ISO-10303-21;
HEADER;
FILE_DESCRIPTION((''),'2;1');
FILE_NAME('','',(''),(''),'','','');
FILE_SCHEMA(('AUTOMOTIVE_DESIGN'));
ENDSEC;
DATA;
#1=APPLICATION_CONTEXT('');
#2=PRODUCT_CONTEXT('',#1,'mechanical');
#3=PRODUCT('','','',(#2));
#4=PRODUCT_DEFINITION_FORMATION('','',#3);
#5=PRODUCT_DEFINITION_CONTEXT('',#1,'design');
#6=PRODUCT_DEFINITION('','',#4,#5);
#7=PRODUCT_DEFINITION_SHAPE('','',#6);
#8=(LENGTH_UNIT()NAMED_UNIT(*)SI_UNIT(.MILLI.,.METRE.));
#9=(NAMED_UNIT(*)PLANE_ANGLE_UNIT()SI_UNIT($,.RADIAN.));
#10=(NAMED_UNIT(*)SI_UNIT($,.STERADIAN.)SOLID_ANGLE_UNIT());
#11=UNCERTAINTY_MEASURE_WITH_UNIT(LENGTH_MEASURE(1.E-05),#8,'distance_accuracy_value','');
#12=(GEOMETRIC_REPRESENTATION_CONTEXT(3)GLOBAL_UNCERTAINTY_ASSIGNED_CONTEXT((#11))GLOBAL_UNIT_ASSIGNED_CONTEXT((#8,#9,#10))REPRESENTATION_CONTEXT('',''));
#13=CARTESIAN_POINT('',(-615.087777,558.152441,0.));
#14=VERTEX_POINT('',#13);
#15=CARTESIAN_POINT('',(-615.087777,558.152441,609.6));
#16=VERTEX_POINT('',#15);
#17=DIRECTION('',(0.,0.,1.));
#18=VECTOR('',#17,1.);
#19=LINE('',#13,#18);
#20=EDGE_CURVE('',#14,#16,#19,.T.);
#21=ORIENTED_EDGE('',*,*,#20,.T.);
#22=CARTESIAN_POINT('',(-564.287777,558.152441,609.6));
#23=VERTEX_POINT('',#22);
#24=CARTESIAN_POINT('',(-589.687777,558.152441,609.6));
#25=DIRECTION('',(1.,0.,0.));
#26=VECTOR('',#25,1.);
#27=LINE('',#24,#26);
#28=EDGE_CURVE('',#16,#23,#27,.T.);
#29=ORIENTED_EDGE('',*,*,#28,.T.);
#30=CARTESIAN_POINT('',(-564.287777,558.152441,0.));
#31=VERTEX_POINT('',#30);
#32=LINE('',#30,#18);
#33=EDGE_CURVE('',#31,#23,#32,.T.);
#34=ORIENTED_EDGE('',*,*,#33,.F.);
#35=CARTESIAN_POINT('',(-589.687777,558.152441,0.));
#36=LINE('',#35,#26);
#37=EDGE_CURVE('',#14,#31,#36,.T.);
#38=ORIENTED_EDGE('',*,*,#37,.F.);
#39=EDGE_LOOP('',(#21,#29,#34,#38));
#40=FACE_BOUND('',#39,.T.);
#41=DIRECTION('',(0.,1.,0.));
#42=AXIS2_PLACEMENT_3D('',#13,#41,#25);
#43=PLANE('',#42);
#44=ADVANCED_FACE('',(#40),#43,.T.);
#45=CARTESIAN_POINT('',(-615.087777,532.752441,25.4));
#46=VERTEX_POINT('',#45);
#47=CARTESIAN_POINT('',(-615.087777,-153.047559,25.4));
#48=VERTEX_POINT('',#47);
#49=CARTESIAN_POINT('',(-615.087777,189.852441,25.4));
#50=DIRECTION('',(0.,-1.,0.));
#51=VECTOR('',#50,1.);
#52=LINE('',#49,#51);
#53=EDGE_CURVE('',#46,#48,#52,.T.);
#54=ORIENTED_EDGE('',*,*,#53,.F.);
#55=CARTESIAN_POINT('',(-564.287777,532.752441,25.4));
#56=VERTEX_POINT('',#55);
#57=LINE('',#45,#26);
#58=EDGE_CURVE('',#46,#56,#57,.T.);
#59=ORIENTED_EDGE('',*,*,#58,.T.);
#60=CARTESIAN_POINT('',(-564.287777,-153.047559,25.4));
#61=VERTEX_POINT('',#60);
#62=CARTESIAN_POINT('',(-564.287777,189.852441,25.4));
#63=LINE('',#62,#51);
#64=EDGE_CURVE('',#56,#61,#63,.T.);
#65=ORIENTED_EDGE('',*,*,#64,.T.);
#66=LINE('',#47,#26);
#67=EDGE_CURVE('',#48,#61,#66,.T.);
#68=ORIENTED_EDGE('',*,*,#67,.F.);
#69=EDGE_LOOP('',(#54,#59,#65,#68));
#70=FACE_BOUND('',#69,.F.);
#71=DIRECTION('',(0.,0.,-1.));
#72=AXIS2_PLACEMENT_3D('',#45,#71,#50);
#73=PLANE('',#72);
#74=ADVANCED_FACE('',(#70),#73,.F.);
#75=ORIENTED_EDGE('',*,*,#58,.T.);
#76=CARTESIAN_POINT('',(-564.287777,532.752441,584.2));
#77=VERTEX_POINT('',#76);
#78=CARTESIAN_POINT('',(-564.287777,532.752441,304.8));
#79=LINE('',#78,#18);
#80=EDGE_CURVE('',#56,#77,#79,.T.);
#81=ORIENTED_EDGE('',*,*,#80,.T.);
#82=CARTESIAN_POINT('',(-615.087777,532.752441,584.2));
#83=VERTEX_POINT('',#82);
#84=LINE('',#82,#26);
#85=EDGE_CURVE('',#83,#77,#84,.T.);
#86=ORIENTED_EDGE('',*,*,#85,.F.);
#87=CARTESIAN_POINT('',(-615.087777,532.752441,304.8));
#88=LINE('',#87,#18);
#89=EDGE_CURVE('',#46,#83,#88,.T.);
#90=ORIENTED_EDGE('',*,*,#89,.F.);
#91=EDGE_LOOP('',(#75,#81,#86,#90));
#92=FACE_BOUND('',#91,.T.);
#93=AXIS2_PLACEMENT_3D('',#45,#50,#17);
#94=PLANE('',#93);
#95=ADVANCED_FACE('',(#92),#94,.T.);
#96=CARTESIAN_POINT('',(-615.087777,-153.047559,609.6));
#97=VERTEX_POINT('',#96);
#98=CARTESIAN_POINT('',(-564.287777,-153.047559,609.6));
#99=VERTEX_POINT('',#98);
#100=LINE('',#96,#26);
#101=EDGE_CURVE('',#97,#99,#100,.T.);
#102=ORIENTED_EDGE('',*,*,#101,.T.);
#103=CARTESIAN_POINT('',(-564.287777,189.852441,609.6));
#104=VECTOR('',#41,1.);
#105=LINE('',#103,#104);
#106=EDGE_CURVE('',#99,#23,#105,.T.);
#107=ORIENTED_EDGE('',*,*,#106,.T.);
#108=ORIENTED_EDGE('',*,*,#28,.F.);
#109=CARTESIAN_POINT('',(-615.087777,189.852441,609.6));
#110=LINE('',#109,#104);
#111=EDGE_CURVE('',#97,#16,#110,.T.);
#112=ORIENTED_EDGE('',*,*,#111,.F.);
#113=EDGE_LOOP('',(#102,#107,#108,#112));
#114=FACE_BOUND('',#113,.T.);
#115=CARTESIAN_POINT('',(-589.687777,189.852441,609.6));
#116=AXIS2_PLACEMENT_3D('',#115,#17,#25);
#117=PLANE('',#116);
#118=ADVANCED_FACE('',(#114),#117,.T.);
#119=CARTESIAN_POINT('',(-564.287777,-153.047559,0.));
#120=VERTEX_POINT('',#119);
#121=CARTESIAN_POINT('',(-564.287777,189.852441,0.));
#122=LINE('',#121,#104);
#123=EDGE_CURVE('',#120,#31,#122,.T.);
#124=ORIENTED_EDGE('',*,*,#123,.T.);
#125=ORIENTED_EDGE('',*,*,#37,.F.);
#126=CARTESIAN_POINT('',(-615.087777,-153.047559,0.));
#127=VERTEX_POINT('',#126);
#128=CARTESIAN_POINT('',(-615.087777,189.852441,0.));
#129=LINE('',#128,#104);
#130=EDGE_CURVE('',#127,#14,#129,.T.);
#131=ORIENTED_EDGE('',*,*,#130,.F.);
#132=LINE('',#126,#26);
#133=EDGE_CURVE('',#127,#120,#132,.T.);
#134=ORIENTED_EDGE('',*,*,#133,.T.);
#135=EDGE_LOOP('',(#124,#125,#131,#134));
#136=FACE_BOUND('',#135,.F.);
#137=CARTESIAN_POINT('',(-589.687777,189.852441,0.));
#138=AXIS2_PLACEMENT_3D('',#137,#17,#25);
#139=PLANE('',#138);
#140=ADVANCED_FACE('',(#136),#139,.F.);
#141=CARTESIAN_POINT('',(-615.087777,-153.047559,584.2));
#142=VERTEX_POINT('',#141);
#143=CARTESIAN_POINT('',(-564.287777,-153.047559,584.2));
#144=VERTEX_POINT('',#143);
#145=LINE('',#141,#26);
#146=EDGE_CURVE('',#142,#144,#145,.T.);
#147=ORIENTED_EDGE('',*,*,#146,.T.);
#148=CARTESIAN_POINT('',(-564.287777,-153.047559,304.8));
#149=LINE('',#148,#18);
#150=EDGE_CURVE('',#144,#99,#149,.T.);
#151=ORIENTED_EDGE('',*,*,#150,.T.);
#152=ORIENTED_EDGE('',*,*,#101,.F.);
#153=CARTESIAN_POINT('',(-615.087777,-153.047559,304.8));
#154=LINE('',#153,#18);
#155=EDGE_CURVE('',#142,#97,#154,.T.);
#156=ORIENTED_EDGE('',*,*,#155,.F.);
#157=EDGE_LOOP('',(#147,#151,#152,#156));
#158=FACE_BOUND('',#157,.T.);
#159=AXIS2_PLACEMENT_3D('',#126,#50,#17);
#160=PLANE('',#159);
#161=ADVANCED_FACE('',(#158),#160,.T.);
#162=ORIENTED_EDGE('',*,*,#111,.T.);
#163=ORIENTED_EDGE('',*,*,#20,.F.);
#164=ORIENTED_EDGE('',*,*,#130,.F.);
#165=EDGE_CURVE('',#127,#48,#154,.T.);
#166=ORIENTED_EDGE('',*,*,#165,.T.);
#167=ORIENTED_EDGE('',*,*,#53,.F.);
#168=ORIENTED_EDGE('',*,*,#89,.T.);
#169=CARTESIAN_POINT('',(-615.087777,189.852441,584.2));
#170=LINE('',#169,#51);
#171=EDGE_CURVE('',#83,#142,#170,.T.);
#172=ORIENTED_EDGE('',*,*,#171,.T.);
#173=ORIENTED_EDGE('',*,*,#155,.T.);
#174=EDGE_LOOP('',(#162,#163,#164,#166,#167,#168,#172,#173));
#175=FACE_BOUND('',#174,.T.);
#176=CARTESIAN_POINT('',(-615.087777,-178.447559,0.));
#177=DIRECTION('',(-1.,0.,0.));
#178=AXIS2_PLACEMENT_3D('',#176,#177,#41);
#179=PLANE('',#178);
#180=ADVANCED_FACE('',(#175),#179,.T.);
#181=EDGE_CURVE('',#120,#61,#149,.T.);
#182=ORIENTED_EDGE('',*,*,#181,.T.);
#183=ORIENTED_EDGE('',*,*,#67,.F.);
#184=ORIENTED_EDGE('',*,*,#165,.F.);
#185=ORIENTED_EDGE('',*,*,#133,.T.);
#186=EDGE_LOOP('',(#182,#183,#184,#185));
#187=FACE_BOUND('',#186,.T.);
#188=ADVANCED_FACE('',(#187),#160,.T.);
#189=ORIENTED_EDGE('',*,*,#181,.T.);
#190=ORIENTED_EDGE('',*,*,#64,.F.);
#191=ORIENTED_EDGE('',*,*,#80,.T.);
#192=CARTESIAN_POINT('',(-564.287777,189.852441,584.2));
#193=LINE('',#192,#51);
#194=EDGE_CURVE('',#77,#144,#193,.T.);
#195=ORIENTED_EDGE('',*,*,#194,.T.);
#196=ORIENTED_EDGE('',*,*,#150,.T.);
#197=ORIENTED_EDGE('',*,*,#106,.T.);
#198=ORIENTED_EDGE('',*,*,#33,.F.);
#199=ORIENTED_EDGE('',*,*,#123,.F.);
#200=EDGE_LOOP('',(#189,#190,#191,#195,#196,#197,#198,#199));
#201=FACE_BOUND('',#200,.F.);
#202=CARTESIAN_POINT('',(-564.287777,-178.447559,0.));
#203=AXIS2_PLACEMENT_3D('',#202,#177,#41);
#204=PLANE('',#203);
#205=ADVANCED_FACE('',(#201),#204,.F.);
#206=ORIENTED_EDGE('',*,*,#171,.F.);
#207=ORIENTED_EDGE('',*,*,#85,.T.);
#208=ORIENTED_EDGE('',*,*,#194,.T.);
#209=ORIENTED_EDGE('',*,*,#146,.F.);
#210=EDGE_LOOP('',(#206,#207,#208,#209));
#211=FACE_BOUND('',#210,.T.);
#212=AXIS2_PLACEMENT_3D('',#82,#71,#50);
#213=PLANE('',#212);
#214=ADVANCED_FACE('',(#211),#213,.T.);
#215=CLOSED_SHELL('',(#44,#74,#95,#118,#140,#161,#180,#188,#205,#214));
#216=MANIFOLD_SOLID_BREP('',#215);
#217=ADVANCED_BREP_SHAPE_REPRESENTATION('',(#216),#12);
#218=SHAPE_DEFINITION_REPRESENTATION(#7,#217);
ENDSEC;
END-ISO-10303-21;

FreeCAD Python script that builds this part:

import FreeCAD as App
import Part
import Sketcher
from FreeCAD import Vector
Q = App.Units.Quantity


def add_polygon(sketch, points):
    """Adds a closed chain of lines whose ends are joined by coincident constraints."""
    first, n = sketch.GeometryCount, len(points)
    for a, b in zip(points, points[1:] + points[:1]):
        sketch.addGeometry(Part.LineSegment(App.Vector(*a, 0), App.Vector(*b, 0)), False)
    for i in range(n):
        sketch.addConstraint(Sketcher.Constraint("Coincident", first + i, 2, first + (i + 1) % n, 1))

doc = App.newDocument("Part")
body = doc.addObject("PartDesign::Body", "Body")

# Sketch on XY plane
sketch1 = doc.addObject("Sketcher::SketchObject", "Sketch")
body.addObject(sketch1)
sketch1.AttachmentSupport = (doc.XY_Plane, [""])
sketch1.MapMode = "FlatFace"
add_polygon(sketch1, [(-615.087777, 558.152441), (-615.087777, -178.447559), (-564.287777, -178.447559), (-564.287777, 558.152441)])  # lines 0-3
sketch1.addConstraint([
    Sketcher.Constraint("Vertical", 0),
    Sketcher.Constraint("Horizontal", 1),
    Sketcher.Constraint("Vertical", 2),
    Sketcher.Constraint("Horizontal", 3),
    Sketcher.Constraint("DistanceX", 1, 1, 1, 2, Q("2 in")),
    Sketcher.Constraint("DistanceY", 0, 2, 0, 1, Q("29 in")),
    Sketcher.Constraint("DistanceY", 0, 2, -1, 1, 178.447559),
    Sketcher.Constraint("DistanceX", 0, 2, -1, 1, 615.087777),
])
pad1 = doc.addObject("PartDesign::Pad", "Pad")
body.addObject(pad1)
pad1.Profile = sketch1
pad1.Length = Q("24 in")

# Sketch on YZ plane
sketch2 = doc.addObject("Sketcher::SketchObject", "Sketch001")
body.addObject(sketch2)
sketch2.AttachmentSupport = (doc.YZ_Plane, [""])
sketch2.MapMode = "FlatFace"
sketch2.AttachmentOffset = App.Placement(Vector(0, 0, -615.087777), App.Rotation())
add_polygon(sketch2, [(532.752441, 584.2), (532.752441, 25.4), (-153.047559, 25.4), (-153.047559, 584.2)])  # lines 0-3
sketch2.addConstraint([
    Sketcher.Constraint("Vertical", 0),
    Sketcher.Constraint("Horizontal", 1),
    Sketcher.Constraint("Vertical", 2),
    Sketcher.Constraint("Horizontal", 3),
    Sketcher.Constraint("DistanceX", 1, 2, 1, 1, Q("27 in")),
    Sketcher.Constraint("DistanceY", 0, 2, 0, 1, Q("22 in")),
    Sketcher.Constraint("DistanceY", -1, 1, 0, 2, Q("1 in")),
    Sketcher.Constraint("DistanceX", -1, 1, 0, 2, 532.752441),
])
pocket1 = doc.addObject("PartDesign::Pocket", "Pocket")
body.addObject(pocket1)
pocket1.Profile = sketch2
pocket1.Length = Q("2 in")
pocket1.Reversed = True

# Sketch on YZ plane
sketch3 = doc.addObject("Sketcher::SketchObject", "Sketch002")
body.addObject(sketch3)
sketch3.AttachmentSupport = (doc.YZ_Plane, [""])
sketch3.MapMode = "FlatFace"
sketch3.AttachmentOffset = App.Placement(Vector(0, 0, -615.087777), App.Rotation())
add_polygon(sketch3, [(-153.047559, 609.6), (-153.047559, 0), (-178.447559, 0), (-178.447559, 609.6)])  # lines 0-3
sketch3.addConstraint([
    Sketcher.Constraint("Vertical", 0),
    Sketcher.Constraint("Horizontal", 1),
    Sketcher.Constraint("Vertical", 2),
    Sketcher.Constraint("Horizontal", 3),
    Sketcher.Constraint("PointOnObject", 0, 2, -1),
    Sketcher.Constraint("DistanceX", 1, 2, 1, 1, Q("1 in")),
    Sketcher.Constraint("DistanceY", 0, 2, 0, 1, Q("24 in")),
    Sketcher.Constraint("DistanceX", 0, 2, -1, 1, 153.047559),
])
pocket2 = doc.addObject("PartDesign::Pocket", "Pocket001")
body.addObject(pocket2)
pocket2.Profile = sketch3
pocket2.Length = Q("2 in")
pocket2.Reversed = True

doc.recompute()
